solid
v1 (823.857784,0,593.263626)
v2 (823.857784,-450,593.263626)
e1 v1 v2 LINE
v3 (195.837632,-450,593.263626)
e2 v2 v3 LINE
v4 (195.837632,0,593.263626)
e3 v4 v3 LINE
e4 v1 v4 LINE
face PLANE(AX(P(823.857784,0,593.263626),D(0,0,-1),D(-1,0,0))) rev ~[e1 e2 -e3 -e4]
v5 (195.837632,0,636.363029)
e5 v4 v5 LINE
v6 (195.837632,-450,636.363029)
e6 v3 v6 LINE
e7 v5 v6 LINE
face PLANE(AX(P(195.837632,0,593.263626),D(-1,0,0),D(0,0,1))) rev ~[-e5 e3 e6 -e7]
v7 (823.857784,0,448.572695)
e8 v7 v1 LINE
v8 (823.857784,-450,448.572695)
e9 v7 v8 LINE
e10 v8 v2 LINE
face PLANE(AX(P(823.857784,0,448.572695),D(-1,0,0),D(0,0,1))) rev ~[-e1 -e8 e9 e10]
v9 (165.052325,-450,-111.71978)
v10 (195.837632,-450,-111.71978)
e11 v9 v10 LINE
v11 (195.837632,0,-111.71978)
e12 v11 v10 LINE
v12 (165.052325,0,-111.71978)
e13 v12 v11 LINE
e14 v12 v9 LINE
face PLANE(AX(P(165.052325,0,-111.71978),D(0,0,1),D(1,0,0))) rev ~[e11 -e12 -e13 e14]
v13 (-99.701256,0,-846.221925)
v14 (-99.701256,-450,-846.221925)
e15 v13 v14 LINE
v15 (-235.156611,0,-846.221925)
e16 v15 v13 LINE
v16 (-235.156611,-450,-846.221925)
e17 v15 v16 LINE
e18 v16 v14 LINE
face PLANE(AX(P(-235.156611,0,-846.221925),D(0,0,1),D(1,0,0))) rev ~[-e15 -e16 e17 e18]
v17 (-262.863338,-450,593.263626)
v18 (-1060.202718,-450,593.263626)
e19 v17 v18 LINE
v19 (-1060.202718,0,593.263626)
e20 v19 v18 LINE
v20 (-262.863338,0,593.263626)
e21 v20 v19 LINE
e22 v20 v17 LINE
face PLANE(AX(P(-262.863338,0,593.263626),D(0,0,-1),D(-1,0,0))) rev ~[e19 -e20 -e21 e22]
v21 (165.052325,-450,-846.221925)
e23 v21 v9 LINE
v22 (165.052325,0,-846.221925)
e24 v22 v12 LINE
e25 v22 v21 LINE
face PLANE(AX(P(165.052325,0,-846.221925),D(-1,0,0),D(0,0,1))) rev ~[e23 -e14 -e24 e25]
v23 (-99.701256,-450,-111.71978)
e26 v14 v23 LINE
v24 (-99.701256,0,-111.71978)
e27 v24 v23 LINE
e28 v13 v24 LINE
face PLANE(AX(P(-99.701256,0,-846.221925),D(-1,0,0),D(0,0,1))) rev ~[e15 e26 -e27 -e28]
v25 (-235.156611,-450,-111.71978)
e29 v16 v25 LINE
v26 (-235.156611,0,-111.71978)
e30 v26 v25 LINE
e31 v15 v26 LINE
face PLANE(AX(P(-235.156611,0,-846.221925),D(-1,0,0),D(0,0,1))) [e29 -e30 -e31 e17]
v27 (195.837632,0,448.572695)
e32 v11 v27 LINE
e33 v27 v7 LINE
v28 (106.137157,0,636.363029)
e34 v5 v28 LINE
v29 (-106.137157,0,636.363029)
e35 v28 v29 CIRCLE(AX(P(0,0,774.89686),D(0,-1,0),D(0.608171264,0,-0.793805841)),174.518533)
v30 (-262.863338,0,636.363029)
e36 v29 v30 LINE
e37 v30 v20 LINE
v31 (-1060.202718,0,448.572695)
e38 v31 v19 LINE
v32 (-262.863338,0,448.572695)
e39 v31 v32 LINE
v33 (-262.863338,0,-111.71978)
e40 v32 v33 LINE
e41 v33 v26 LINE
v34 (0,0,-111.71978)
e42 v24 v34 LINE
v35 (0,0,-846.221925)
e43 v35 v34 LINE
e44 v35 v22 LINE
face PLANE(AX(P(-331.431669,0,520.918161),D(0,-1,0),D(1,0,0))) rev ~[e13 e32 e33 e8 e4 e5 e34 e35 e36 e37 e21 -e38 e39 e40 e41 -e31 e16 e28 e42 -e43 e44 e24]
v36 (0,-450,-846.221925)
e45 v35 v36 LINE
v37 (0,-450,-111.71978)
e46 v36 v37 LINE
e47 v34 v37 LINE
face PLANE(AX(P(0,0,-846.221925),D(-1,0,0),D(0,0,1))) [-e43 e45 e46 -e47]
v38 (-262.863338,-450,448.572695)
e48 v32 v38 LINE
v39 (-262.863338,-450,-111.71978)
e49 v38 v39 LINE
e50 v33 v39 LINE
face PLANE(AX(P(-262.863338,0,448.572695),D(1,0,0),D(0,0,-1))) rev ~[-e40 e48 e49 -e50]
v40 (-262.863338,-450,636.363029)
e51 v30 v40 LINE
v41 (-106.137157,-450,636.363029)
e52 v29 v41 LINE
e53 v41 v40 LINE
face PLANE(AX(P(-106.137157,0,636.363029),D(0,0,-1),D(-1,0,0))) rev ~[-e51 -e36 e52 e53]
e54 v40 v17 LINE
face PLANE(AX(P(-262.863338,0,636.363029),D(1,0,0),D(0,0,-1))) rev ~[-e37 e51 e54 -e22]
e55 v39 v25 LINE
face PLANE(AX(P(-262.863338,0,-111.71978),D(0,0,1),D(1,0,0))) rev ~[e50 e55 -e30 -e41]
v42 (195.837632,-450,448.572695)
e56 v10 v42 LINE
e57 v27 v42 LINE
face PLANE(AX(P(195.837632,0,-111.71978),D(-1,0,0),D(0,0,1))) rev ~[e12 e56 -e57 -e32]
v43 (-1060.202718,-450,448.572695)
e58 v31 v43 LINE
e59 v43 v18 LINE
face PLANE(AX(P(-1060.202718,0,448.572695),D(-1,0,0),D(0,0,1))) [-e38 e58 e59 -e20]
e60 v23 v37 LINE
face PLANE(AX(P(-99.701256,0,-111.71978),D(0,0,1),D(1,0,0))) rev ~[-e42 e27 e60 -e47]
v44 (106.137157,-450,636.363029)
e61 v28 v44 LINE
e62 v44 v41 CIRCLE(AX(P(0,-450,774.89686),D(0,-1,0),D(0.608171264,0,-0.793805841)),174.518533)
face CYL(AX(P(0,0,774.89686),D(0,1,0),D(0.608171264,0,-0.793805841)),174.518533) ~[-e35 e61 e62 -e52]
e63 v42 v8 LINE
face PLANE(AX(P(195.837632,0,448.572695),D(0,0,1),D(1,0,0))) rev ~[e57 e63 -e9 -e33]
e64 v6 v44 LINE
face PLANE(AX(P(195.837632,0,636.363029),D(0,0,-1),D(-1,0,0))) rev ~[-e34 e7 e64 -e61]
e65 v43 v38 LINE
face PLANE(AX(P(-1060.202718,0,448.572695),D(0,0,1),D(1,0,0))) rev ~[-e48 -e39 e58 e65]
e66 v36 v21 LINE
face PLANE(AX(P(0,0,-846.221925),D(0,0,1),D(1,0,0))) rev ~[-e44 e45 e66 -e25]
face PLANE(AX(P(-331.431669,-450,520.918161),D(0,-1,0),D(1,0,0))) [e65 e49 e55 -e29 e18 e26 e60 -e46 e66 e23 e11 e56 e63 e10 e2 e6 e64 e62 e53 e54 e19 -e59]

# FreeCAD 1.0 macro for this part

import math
import FreeCAD as App
import Part
import Sketcher

V = App.Vector
Q = App.Units.Quantity

doc = App.newDocument("Part")
body = doc.addObject("PartDesign::Body", "Body")

sketch1 = doc.addObject("Sketcher::SketchObject", "Sketch")
body.addObject(sketch1)
sketch1.AttachmentSupport = (doc.XZ_Plane, [""])
sketch1.MapMode = "FlatFace"
sketch1.addGeometry([
    Part.LineSegment(V(-1060, 593, 0), V(-1060, 449, 0)),
    Part.LineSegment(V(-1060, 449, 0), V(-263, 449, 0)),
    Part.LineSegment(V(-263, 449, 0), V(-263, -112, 0)),
    Part.LineSegment(V(-263, -112, 0), V(-235, -112, 0)),
    Part.LineSegment(V(-235, -112, 0), V(-235, -846, 0)),
    Part.LineSegment(V(-235, -846, 0), V(-100, -846, 0)),
    Part.LineSegment(V(-100, -846, 0), V(-100, -112, 0)),
    Part.LineSegment(V(-100, -112, 0), V(0, -112, 0)),
    Part.LineSegment(V(0, -112, 0), V(0, -846, 0)),
    Part.LineSegment(V(0, -846, 0), V(165, -846, 0)),
    Part.LineSegment(V(165, -846, 0), V(165, -112, 0)),
    Part.LineSegment(V(165, -112, 0), V(196, -112, 0)),
    Part.LineSegment(V(196, -112, 0), V(196, 449, 0)),
    Part.LineSegment(V(196, 449, 0), V(824, 449, 0)),
    Part.LineSegment(V(824, 449, 0), V(824, 593, 0)),
    Part.LineSegment(V(824, 593, 0), V(196, 593, 0)),
    Part.LineSegment(V(196, 593, 0), V(196, 636, 0)),
    Part.LineSegment(V(196, 636, 0), V(106, 636, 0)),
    Part.ArcOfCircle(Part.Circle(V(0, 775, 0), V(0, 0, 1), 175), math.radians(-53), math.radians(233)),
    Part.LineSegment(V(-106, 636, 0), V(-263, 636, 0)),
    Part.LineSegment(V(-263, 636, 0), V(-263, 593, 0)),
    Part.LineSegment(V(-263, 593, 0), V(-1060, 593, 0)),
], False)
sketch1.addConstraint([
    Sketcher.Constraint("Coincident", 0, 2, 1, 1),
    Sketcher.Constraint("Coincident", 1, 2, 2, 1),
    Sketcher.Constraint("Coincident", 2, 2, 3, 1),
    Sketcher.Constraint("Coincident", 3, 2, 4, 1),
    Sketcher.Constraint("Coincident", 4, 2, 5, 1),
    Sketcher.Constraint("Coincident", 5, 2, 6, 1),
    Sketcher.Constraint("Coincident", 6, 2, 7, 1),
    Sketcher.Constraint("Coincident", 7, 2, 8, 1),
    Sketcher.Constraint("Coincident", 8, 2, 9, 1),
    Sketcher.Constraint("Coincident", 9, 2, 10, 1),
    Sketcher.Constraint("Coincident", 10, 2, 11, 1),
    Sketcher.Constraint("Coincident", 11, 2, 12, 1),
    Sketcher.Constraint("Coincident", 12, 2, 13, 1),
    Sketcher.Constraint("Coincident", 13, 2, 14, 1),
    Sketcher.Constraint("Coincident", 14, 2, 15, 1),
    Sketcher.Constraint("Coincident", 15, 2, 16, 1),
    Sketcher.Constraint("Coincident", 16, 2, 17, 1),
    Sketcher.Constraint("Coincident", 17, 2, 18, 1),
    Sketcher.Constraint("Coincident", 18, 2, 19, 1),
    Sketcher.Constraint("Coincident", 19, 2, 20, 1),
    Sketcher.Constraint("Coincident", 20, 2, 21, 1),
    Sketcher.Constraint("Coincident", 21, 2, 0, 1),
    Sketcher.Constraint("Vertical", 0),
    Sketcher.Constraint("Horizontal", 1),
    Sketcher.Constraint("Vertical", 2),
    Sketcher.Constraint("Horizontal", 3),
    Sketcher.Constraint("Vertical", 4),
    Sketcher.Constraint("Horizontal", 5),
    Sketcher.Constraint("Vertical", 6),
    Sketcher.Constraint("Horizontal", 7),
    Sketcher.Constraint("Vertical", 8),
    Sketcher.Constraint("Horizontal", 9),
    Sketcher.Constraint("Vertical", 10),
    Sketcher.Constraint("Horizontal", 11),
    Sketcher.Constraint("Vertical", 12),
    Sketcher.Constraint("Horizontal", 13),
    Sketcher.Constraint("Vertical", 14),
    Sketcher.Constraint("Horizontal", 15),
    Sketcher.Constraint("Vertical", 16),
    Sketcher.Constraint("Horizontal", 17),
    Sketcher.Constraint("Horizontal", 19),
    Sketcher.Constraint("Vertical", 20),
    Sketcher.Constraint("Horizontal", 21),
    Sketcher.Constraint("Symmetric", 17, 2, 18, 2, -2),
    Sketcher.Constraint("PointOnObject", 7, 2, -2),
    Sketcher.Constraint("Horizontal", 3, 2, 6, 2),
    Sketcher.Constraint("Horizontal", 5, 2, 8, 2),
    Sketcher.Constraint("Horizontal", 7, 2, 10, 2),
    Sketcher.Constraint("Horizontal", 1, 2, 12, 2),
    Sketcher.Constraint("Horizontal", 15, 2, 20, 2),
    Sketcher.Constraint("Vertical", 12, 2, 15, 2),
    Sketcher.Constraint("Vertical", 2, 2, 19, 2),
    Sketcher.Constraint("Radius", 18, Q("174.518533 mm")),
    Sketcher.Constraint("DistanceX", 1, 1, 1, 2, Q("797.33938 mm")),
    Sketcher.Constraint("DistanceX", 19, 2, 19, 1, Q("156.726181 mm")),
    Sketcher.Constraint("DistanceY", 0, 2, 0, 1, Q("144.690931 mm")),
    Sketcher.Constraint("DistanceX", 3, 1, 3, 2, Q("27.706727 mm")),
    Sketcher.Constraint("DistanceX", 5, 1, 5, 2, Q("135.455355 mm")),
    Sketcher.Constraint("DistanceX", 7, 1, 7, 2, Q("99.701256 mm")),
    Sketcher.Constraint("DistanceX", 9, 1, 9, 2, Q("165.052325 mm")),
    Sketcher.Constraint("DistanceX", 11, 1, 11, 2, Q("30.785307 mm")),
    Sketcher.Constraint("DistanceX", 13, 1, 13, 2, Q("628.020152 mm")),
    Sketcher.Constraint("DistanceY", 2, 2, 2, 1, Q("560.292475 mm")),
    Sketcher.Constraint("DistanceY", 4, 2, 4, 1, Q("734.502146 mm")),
    Sketcher.Constraint("DistanceY", 16, 1, 16, 2, Q("43.099403 mm")),
    Sketcher.Constraint("DistanceY", -1, 1, 18, 3, Q("774.89686 mm")),
])
pad1 = doc.addObject("PartDesign::Pad", "Pad")
body.addObject(pad1)
pad1.Profile = sketch1
pad1.Length = 450

doc.recompute()
